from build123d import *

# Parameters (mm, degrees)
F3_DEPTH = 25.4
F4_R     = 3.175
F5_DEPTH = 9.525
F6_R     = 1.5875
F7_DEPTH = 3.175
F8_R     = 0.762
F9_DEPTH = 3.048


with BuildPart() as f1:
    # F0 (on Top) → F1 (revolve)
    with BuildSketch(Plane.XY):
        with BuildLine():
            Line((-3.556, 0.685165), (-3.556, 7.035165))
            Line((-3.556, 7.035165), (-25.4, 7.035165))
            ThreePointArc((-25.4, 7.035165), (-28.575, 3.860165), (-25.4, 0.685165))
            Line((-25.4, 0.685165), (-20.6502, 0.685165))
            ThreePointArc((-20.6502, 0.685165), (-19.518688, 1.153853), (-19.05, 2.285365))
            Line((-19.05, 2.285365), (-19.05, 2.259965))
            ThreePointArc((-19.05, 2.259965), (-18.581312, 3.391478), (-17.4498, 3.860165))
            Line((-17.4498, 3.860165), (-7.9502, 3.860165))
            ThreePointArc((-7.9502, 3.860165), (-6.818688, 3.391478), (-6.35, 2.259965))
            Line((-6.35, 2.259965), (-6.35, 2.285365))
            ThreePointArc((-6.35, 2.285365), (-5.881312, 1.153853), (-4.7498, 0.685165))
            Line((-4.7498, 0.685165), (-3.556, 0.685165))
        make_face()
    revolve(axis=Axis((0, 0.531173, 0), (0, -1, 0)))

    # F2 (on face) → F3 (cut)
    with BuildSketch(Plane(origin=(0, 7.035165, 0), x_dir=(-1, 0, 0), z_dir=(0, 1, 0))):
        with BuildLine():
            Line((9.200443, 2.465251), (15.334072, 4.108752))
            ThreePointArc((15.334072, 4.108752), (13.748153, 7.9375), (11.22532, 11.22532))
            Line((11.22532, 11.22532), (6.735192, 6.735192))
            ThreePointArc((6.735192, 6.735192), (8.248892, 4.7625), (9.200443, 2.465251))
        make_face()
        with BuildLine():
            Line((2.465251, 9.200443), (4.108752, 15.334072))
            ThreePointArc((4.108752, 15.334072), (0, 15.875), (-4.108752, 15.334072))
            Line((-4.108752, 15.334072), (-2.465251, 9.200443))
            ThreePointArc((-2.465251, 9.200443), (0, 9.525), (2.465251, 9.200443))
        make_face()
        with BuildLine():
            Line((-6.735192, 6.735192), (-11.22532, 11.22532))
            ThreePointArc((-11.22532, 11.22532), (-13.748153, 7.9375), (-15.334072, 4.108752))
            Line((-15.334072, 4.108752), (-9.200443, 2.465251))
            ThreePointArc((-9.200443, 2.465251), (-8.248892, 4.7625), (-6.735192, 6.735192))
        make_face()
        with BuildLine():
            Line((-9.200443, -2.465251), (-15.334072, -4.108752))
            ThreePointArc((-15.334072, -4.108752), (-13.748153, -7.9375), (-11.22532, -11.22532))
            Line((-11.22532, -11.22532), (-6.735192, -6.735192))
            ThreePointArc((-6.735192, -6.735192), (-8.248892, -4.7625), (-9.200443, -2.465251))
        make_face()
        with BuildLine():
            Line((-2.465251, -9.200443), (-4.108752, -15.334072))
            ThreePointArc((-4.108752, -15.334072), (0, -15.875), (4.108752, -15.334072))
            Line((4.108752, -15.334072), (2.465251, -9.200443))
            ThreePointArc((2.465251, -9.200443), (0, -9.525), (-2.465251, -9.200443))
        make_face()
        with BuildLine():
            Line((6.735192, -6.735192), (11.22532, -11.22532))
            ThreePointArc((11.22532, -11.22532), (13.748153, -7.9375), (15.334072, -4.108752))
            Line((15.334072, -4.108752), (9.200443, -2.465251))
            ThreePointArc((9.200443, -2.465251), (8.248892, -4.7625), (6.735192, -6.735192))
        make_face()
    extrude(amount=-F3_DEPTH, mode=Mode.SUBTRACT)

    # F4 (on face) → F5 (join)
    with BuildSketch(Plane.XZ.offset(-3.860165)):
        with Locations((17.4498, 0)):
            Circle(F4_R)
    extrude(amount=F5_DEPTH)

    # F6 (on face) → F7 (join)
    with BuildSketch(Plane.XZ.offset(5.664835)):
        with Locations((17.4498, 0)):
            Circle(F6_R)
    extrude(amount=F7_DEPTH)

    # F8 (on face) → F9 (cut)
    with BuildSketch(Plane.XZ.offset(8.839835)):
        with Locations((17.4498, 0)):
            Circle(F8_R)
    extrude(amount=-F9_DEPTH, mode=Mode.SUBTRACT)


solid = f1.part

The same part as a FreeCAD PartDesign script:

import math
import FreeCAD as App
import Part
import Sketcher
from FreeCAD import Vector
Q = App.Units.Quantity

doc = App.newDocument("Part")
body = doc.addObject("PartDesign::Body", "Body")

# Sketch on XY plane
sketch1 = body.newObject("Sketcher::SketchObject", "Sketch")
sketch1.AttachmentSupport = (doc.getObject("XY_Plane"), [""])
sketch1.MapMode = "FlatFace"
sketch1.addGeometry([
    Part.LineSegment(Vector(-3.556, 0.685, 0), Vector(-3.556, 7.035, 0)),  # 0
    Part.LineSegment(Vector(-3.556, 7.035, 0), Vector(-25.4, 7.035, 0)),  # 1
    Part.ArcOfCircle(Part.Circle(Vector(-25.4, 3.86, 0), Vector(0, 0, 1), 3.175), math.radians(90), math.radians(270)),  # 2
    Part.LineSegment(Vector(-25.4, 0.685, 0), Vector(-20.65, 0.685, 0)),  # 3
    Part.ArcOfCircle(Part.Circle(Vector(-20.65, 2.285, 0), Vector(0, 0, 1), 1.6), math.radians(-90), math.radians(0)),  # 4
    Part.LineSegment(Vector(-19.05, 2.285, 0), Vector(-19.05, 2.26, 0)),  # 5
    Part.ArcOfCircle(Part.Circle(Vector(-17.45, 2.26, 0), Vector(0, 0, 1), 1.6), math.radians(90), math.radians(180)),  # 6
    Part.LineSegment(Vector(-17.45, 3.86, 0), Vector(-7.95, 3.86, 0)),  # 7
    Part.ArcOfCircle(Part.Circle(Vector(-7.95, 2.26, 0), Vector(0, 0, 1), 1.6), math.radians(0), math.radians(90)),  # 8
    Part.LineSegment(Vector(-6.35, 2.26, 0), Vector(-6.35, 2.285, 0)),  # 9
    Part.ArcOfCircle(Part.Circle(Vector(-4.75, 2.285, 0), Vector(0, 0, 1), 1.6), math.radians(-180), math.radians(-90)),  # 10
    Part.LineSegment(Vector(-4.75, 0.685, 0), Vector(-3.556, 0.685, 0)),  # 11
], False)
sketch1.addConstraint([
    Sketcher.Constraint("Coincident", 0, 2, 1, 1),
    Sketcher.Constraint("Tangent", 1, 2, 2, 1),
    Sketcher.Constraint("Tangent", 2, 2, 3, 1),
    Sketcher.Constraint("Tangent", 3, 2, 4, 1),
    Sketcher.Constraint("Tangent", 4, 2, 5, 1),
    Sketcher.Constraint("Tangent", 5, 2, 6, 2),
    Sketcher.Constraint("Tangent", 6, 1, 7, 1),
    Sketcher.Constraint("Tangent", 7, 2, 8, 2),
    Sketcher.Constraint("Tangent", 8, 1, 9, 1),
    Sketcher.Constraint("Tangent", 9, 2, 10, 1),
    Sketcher.Constraint("Tangent", 10, 2, 11, 1),
    Sketcher.Constraint("Coincident", 11, 2, 0, 1),
    Sketcher.Constraint("Vertical", 0),
    Sketcher.Constraint("Horizontal", 1),
    Sketcher.Constraint("Horizontal", 3),
    Sketcher.Constraint("Vertical", 5),
    Sketcher.Constraint("Horizontal", 7),
    Sketcher.Constraint("Vertical", 9),
    Sketcher.Constraint("Horizontal", 11),
    Sketcher.Constraint("Equal", 4, 6),
    Sketcher.Constraint("Equal", 6, 8),
    Sketcher.Constraint("Equal", 8, 10),
    Sketcher.Constraint("Horizontal", 4, 3, 10, 3),
    Sketcher.Constraint("Horizontal", 2, 3, 6, 1),
    Sketcher.Constraint("DistanceX", 2, 3, -1, 1, Q("1 in")),
    Sketcher.Constraint("Radius", 2, Q("0.125 in")),
    Sketcher.Constraint("Radius", 4, Q("0.063 in")),
    Sketcher.Constraint("DistanceX", 1, 2, 1, 1, Q("0.86 in")),
    Sketcher.Constraint("DistanceX", 4, 3, 8, 3, Q("0.5000001 in")),
    Sketcher.Constraint("DistanceX", 3, 1, 3, 2, Q("0.187 in")),
    Sketcher.Constraint("DistanceY", -1, 1, 2, 3, Q("3.860165 mm")),
])
revolution = body.newObject("PartDesign::Revolution", "Revolution")
revolution.Profile = sketch1
revolution.ReferenceAxis = (sketch1, ["V_Axis"])
revolution.Angle = 360

# Sketch on XZ plane
sketch2 = body.newObject("Sketcher::SketchObject", "Sketch001")
sketch2.AttachmentSupport = (doc.getObject("XZ_Plane"), [""])
sketch2.MapMode = "FlatFace"
sketch2.AttachmentOffset = App.Placement(Vector(0, 0, -7.035165), App.Rotation())
sketch2.addGeometry([
    Part.LineSegment(Vector(-9.200443, 2.465251, 0), Vector(-15.334072, 4.108752, 0)),  # 0
    Part.ArcOfCircle(Part.Circle(Vector(-0.000003, 0.000003, 0), Vector(0, 0, 1), 15.874996), math.radians(134.999998), math.radians(165.000007)),  # 1
    Part.LineSegment(Vector(-11.22532, 11.22532, 0), Vector(-6.735192, 6.735192, 0)),  # 2
    Part.ArcOfCircle(Part.Circle(Vector(-0.000009, 0.000006, 0), Vector(0, 0, 1), 9.524989), math.radians(134.999988), math.radians(165.000024)),  # 3
    Part.LineSegment(Vector(-2.465251, 9.200443, 0), Vector(-4.108752, 15.334072, 0)),  # 4
    Part.ArcOfCircle(Part.Circle(Vector(0, 0.000017, 0), Vector(0, 0, 1), 15.874983), math.radians(74.999985), math.radians(105.000015)),  # 5
    Part.LineSegment(Vector(4.108752, 15.334072, 0), Vector(2.465251, 9.200443, 0)),  # 6
    Part.ArcOfCircle(Part.Circle(Vector(0, 0.000017, 0), Vector(0, 0, 1), 9.524983), math.radians(74.999975), math.radians(105.000025)),  # 7
    Part.LineSegment(Vector(6.735192, 6.735192, 0), Vector(11.22532, 11.22532, 0)),  # 8
    Part.ArcOfCircle(Part.Circle(Vector(0.000003, 0.000003, 0), Vector(0, 0, 1), 15.874996), math.radians(14.999993), math.radians(45.000002)),  # 9
    Part.LineSegment(Vector(15.334072, 4.108752, 0), Vector(9.200443, 2.465251, 0)),  # 10
    Part.ArcOfCircle(Part.Circle(Vector(0.000009, 0.000006, 0), Vector(0, 0, 1), 9.524989), math.radians(14.999976), math.radians(45.000012)),  # 11
    Part.LineSegment(Vector(9.200443, -2.465251, 0), Vector(15.334072, -4.108752, 0)),  # 12
    Part.ArcOfCircle(Part.Circle(Vector(0.000003, -0.000003, 0), Vector(0, 0, 1), 15.874996), math.radians(-45.000002), math.radians(-14.999993)),  # 13
    Part.LineSegment(Vector(11.22532, -11.22532, 0), Vector(6.735192, -6.735192, 0)),  # 14
    Part.ArcOfCircle(Part.Circle(Vector(0.000009, -0.000006, 0), Vector(0, 0, 1), 9.524989), math.radians(-45.000012), math.radians(-14.999976)),  # 15
    Part.LineSegment(Vector(2.465251, -9.200443, 0), Vector(4.108752, -15.334072, 0)),  # 16
    Part.ArcOfCircle(Part.Circle(Vector(0, -0.000017, 0), Vector(0, 0, 1), 15.874983), math.radians(-105.000015), math.radians(-74.999985)),  # 17
    Part.LineSegment(Vector(-4.108752, -15.334072, 0), Vector(-2.465251, -9.200443, 0)),  # 18
    Part.ArcOfCircle(Part.Circle(Vector(0, -0.000017, 0), Vector(0, 0, 1), 9.524983), math.radians(-105.000025), math.radians(-74.999975)),  # 19
    Part.LineSegment(Vector(-6.735192, -6.735192, 0), Vector(-11.22532, -11.22532, 0)),  # 20
    Part.ArcOfCircle(Part.Circle(Vector(-0.000003, -0.000003, 0), Vector(0, 0, 1), 15.874996), math.radians(-165.000007), math.radians(-134.999998)),  # 21
    Part.LineSegment(Vector(-15.334072, -4.108752, 0), Vector(-9.200443, -2.465251, 0)),  # 22
    Part.ArcOfCircle(Part.Circle(Vector(-0.000009, -0.000006, 0), Vector(0, 0, 1), 9.524989), math.radians(-165.000024), math.radians(-134.999988)),  # 23
], False)
sketch2.addConstraint([
    Sketcher.Constraint("Coincident", 0, 2, 1, 2),
    Sketcher.Constraint("Coincident", 1, 1, 2, 1),
    Sketcher.Constraint("Coincident", 2, 2, 3, 1),
    Sketcher.Constraint("Coincident", 3, 2, 0, 1),
    Sketcher.Constraint("Coincident", 4, 2, 5, 2),
    Sketcher.Constraint("Coincident", 5, 1, 6, 1),
    Sketcher.Constraint("Coincident", 6, 2, 7, 1),
    Sketcher.Constraint("Coincident", 7, 2, 4, 1),
    Sketcher.Constraint("Coincident", 8, 2, 9, 2),
    Sketcher.Constraint("Coincident", 9, 1, 10, 1),
    Sketcher.Constraint("Coincident", 10, 2, 11, 1),
    Sketcher.Constraint("Coincident", 11, 2, 8, 1),
    Sketcher.Constraint("Coincident", 12, 2, 13, 2),
    Sketcher.Constraint("Coincident", 13, 1, 14, 1),
    Sketcher.Constraint("Coincident", 14, 2, 15, 1),
    Sketcher.Constraint("Coincident", 15, 2, 12, 1),
    Sketcher.Constraint("Coincident", 16, 2, 17, 2),
    Sketcher.Constraint("Coincident", 17, 1, 18, 1),
    Sketcher.Constraint("Coincident", 18, 2, 19, 1),
    Sketcher.Constraint("Coincident", 19, 2, 16, 1),
    Sketcher.Constraint("Coincident", 20, 2, 21, 2),
    Sketcher.Constraint("Coincident", 21, 1, 22, 1),
    Sketcher.Constraint("Coincident", 22, 2, 23, 1),
    Sketcher.Constraint("Coincident", 23, 2, 20, 1),
    Sketcher.Constraint("Coincident", 1, 3, -1, 1),
    Sketcher.Constraint("Coincident", 9, 3, -1, 1),
    Sketcher.Constraint("Coincident", 13, 3, -1, 1),
    Sketcher.Constraint("Coincident", 21, 3, -1, 1),
    Sketcher.Constraint("Coincident", 3, 3, 1, 3),
    Sketcher.Constraint("Coincident", 7, 3, 5, 3),
    Sketcher.Constraint("Coincident", 11, 3, 9, 3),
    Sketcher.Constraint("Coincident", 15, 3, 13, 3),
    Sketcher.Constraint("Coincident", 19, 3, 17, 3),
    Sketcher.Constraint("Coincident", 23, 3, 21, 3),
    Sketcher.Constraint("Equal", 1, 9),
    Sketcher.Constraint("Equal", 3, 11),
    Sketcher.Constraint("Equal", 9, 13),
    Sketcher.Constraint("Equal", 11, 15),
    Sketcher.Constraint("Equal", 5, 17),
    Sketcher.Constraint("Equal", 7, 19),
    Sketcher.Constraint("Equal", 13, 21),
    Sketcher.Constraint("Equal", 15, 23),
    Sketcher.Constraint("Symmetric", 5, 3, 17, 3, -1, 1),
    Sketcher.Constraint("Symmetric", 4, 2, 5, 1, -2),
    Sketcher.Constraint("Perpendicular", 0, 6),
    Sketcher.Constraint("Perpendicular", 2, 8),
    Sketcher.Constraint("Perpendicular", 4, 10),
    Sketcher.Constraint("Perpendicular", 6, 12),
    Sketcher.Constraint("Perpendicular", 8, 14),
    Sketcher.Constraint("Perpendicular", 10, 16),
    Sketcher.Constraint("Perpendicular", 12, 18),
    Sketcher.Constraint("Perpendicular", 14, 20),
    Sketcher.Constraint("Perpendicular", 16, 22),
    Sketcher.Constraint("Horizontal", 6, 2, 7, 2),
    Sketcher.Constraint("Horizontal", 1, 1, 8, 2),
    Sketcher.Constraint("Horizontal", 0, 2, 9, 1),
    Sketcher.Constraint("Horizontal", 2, 2, 11, 2),
    Sketcher.Constraint("Horizontal", 16, 2, 17, 1),
    Sketcher.Constraint("Horizontal", 13, 1, 20, 2),
    Sketcher.Constraint("Horizontal", 12, 2, 21, 1),
    Sketcher.Constraint("Vertical", 9, 1, 12, 2),
    Sketcher.Constraint("Vertical", 8, 2, 13, 1),
    Sketcher.Constraint("Vertical", 5, 1, 16, 2),
    Sketcher.Constraint("Equal", 2, 4),
    Sketcher.Constraint("Angle", 0, Q("164.999999 deg")),
    Sketcher.Constraint("Radius", 1, Q("0.6249998 in")),
    Sketcher.Constraint("Distance", 0, Q("0.25 in")),
    Sketcher.Constraint("Radius", 5, Q("15.874983 mm")),
    Sketcher.Constraint("DistanceX", 7, 2, 6, 2, Q("4.930502 mm")),
    Sketcher.Constraint("DistanceY", 15, 2, 10, 2, Q("4.930502 mm")),
    Sketcher.Constraint("DistanceX", 1, 1, -1, 1, Q("11.22532 mm")),
    Sketcher.Constraint("DistanceY", -1, 1, 5, 1, Q("15.334072 mm")),
])
pocket1 = body.newObject("PartDesign::Pocket", "Pocket")
pocket1.Profile = sketch2
pocket1.Length = Q("1 in")
pocket1.Reversed = True

# Sketch on XZ plane
sketch3 = body.newObject("Sketcher::SketchObject", "Sketch002")
sketch3.AttachmentSupport = (doc.getObject("XZ_Plane"), [""])
sketch3.MapMode = "FlatFace"
sketch3.AttachmentOffset = App.Placement(Vector(0, 0, -3.860165), App.Rotation())
sketch3.addGeometry(Part.Circle(Vector(17.4, 0, 0), Vector(0, 0, 1), 3.2), False)
sketch3.addConstraint([
    Sketcher.Constraint("PointOnObject", 0, 3, -1),
    Sketcher.Constraint("Diameter", 0, Q("0.25 in")),
    Sketcher.Constraint("DistanceX", -1, 1, 0, 3, Q("0.687 in")),
])
pad1 = body.newObject("PartDesign::Pad", "Pad")
pad1.Profile = sketch3
pad1.Length = Q("0.375 in")

# Sketch on XZ plane
sketch4 = body.newObject("Sketcher::SketchObject", "Sketch003")
sketch4.AttachmentSupport = (doc.getObject("XZ_Plane"), [""])
sketch4.MapMode = "FlatFace"
sketch4.AttachmentOffset = App.Placement(Vector(0, 0, 5.664835), App.Rotation())
sketch4.addGeometry(Part.Circle(Vector(17.4, 0, 0), Vector(0, 0, 1), 1.6), False)
sketch4.addConstraint([
    Sketcher.Constraint("PointOnObject", 0, 3, -1),
    Sketcher.Constraint("Diameter", 0, Q("0.125 in")),
    Sketcher.Constraint("DistanceX", -1, 1, 0, 3, Q("0.687 in")),
])
pad2 = body.newObject("PartDesign::Pad", "Pad001")
pad2.Profile = sketch4
pad2.Length = Q("0.125 in")

# Sketch on XZ plane
sketch5 = body.newObject("Sketcher::SketchObject", "Sketch004")
sketch5.AttachmentSupport = (doc.getObject("XZ_Plane"), [""])
sketch5.MapMode = "FlatFace"
sketch5.AttachmentOffset = App.Placement(Vector(0, 0, 8.839835), App.Rotation())
sketch5.addGeometry(Part.Circle(Vector(17.4, 0, 0), Vector(0, 0, 1), 0.8), False)
sketch5.addConstraint([
    Sketcher.Constraint("PointOnObject", 0, 3, -1),
    Sketcher.Constraint("Diameter", 0, Q("0.06 in")),
    Sketcher.Constraint("DistanceX", -1, 1, 0, 3, Q("0.687 in")),
])
pocket2 = body.newObject("PartDesign::Pocket", "Pocket001")
pocket2.Profile = sketch5
pocket2.Length = Q("0.12 in")

doc.recompute()
